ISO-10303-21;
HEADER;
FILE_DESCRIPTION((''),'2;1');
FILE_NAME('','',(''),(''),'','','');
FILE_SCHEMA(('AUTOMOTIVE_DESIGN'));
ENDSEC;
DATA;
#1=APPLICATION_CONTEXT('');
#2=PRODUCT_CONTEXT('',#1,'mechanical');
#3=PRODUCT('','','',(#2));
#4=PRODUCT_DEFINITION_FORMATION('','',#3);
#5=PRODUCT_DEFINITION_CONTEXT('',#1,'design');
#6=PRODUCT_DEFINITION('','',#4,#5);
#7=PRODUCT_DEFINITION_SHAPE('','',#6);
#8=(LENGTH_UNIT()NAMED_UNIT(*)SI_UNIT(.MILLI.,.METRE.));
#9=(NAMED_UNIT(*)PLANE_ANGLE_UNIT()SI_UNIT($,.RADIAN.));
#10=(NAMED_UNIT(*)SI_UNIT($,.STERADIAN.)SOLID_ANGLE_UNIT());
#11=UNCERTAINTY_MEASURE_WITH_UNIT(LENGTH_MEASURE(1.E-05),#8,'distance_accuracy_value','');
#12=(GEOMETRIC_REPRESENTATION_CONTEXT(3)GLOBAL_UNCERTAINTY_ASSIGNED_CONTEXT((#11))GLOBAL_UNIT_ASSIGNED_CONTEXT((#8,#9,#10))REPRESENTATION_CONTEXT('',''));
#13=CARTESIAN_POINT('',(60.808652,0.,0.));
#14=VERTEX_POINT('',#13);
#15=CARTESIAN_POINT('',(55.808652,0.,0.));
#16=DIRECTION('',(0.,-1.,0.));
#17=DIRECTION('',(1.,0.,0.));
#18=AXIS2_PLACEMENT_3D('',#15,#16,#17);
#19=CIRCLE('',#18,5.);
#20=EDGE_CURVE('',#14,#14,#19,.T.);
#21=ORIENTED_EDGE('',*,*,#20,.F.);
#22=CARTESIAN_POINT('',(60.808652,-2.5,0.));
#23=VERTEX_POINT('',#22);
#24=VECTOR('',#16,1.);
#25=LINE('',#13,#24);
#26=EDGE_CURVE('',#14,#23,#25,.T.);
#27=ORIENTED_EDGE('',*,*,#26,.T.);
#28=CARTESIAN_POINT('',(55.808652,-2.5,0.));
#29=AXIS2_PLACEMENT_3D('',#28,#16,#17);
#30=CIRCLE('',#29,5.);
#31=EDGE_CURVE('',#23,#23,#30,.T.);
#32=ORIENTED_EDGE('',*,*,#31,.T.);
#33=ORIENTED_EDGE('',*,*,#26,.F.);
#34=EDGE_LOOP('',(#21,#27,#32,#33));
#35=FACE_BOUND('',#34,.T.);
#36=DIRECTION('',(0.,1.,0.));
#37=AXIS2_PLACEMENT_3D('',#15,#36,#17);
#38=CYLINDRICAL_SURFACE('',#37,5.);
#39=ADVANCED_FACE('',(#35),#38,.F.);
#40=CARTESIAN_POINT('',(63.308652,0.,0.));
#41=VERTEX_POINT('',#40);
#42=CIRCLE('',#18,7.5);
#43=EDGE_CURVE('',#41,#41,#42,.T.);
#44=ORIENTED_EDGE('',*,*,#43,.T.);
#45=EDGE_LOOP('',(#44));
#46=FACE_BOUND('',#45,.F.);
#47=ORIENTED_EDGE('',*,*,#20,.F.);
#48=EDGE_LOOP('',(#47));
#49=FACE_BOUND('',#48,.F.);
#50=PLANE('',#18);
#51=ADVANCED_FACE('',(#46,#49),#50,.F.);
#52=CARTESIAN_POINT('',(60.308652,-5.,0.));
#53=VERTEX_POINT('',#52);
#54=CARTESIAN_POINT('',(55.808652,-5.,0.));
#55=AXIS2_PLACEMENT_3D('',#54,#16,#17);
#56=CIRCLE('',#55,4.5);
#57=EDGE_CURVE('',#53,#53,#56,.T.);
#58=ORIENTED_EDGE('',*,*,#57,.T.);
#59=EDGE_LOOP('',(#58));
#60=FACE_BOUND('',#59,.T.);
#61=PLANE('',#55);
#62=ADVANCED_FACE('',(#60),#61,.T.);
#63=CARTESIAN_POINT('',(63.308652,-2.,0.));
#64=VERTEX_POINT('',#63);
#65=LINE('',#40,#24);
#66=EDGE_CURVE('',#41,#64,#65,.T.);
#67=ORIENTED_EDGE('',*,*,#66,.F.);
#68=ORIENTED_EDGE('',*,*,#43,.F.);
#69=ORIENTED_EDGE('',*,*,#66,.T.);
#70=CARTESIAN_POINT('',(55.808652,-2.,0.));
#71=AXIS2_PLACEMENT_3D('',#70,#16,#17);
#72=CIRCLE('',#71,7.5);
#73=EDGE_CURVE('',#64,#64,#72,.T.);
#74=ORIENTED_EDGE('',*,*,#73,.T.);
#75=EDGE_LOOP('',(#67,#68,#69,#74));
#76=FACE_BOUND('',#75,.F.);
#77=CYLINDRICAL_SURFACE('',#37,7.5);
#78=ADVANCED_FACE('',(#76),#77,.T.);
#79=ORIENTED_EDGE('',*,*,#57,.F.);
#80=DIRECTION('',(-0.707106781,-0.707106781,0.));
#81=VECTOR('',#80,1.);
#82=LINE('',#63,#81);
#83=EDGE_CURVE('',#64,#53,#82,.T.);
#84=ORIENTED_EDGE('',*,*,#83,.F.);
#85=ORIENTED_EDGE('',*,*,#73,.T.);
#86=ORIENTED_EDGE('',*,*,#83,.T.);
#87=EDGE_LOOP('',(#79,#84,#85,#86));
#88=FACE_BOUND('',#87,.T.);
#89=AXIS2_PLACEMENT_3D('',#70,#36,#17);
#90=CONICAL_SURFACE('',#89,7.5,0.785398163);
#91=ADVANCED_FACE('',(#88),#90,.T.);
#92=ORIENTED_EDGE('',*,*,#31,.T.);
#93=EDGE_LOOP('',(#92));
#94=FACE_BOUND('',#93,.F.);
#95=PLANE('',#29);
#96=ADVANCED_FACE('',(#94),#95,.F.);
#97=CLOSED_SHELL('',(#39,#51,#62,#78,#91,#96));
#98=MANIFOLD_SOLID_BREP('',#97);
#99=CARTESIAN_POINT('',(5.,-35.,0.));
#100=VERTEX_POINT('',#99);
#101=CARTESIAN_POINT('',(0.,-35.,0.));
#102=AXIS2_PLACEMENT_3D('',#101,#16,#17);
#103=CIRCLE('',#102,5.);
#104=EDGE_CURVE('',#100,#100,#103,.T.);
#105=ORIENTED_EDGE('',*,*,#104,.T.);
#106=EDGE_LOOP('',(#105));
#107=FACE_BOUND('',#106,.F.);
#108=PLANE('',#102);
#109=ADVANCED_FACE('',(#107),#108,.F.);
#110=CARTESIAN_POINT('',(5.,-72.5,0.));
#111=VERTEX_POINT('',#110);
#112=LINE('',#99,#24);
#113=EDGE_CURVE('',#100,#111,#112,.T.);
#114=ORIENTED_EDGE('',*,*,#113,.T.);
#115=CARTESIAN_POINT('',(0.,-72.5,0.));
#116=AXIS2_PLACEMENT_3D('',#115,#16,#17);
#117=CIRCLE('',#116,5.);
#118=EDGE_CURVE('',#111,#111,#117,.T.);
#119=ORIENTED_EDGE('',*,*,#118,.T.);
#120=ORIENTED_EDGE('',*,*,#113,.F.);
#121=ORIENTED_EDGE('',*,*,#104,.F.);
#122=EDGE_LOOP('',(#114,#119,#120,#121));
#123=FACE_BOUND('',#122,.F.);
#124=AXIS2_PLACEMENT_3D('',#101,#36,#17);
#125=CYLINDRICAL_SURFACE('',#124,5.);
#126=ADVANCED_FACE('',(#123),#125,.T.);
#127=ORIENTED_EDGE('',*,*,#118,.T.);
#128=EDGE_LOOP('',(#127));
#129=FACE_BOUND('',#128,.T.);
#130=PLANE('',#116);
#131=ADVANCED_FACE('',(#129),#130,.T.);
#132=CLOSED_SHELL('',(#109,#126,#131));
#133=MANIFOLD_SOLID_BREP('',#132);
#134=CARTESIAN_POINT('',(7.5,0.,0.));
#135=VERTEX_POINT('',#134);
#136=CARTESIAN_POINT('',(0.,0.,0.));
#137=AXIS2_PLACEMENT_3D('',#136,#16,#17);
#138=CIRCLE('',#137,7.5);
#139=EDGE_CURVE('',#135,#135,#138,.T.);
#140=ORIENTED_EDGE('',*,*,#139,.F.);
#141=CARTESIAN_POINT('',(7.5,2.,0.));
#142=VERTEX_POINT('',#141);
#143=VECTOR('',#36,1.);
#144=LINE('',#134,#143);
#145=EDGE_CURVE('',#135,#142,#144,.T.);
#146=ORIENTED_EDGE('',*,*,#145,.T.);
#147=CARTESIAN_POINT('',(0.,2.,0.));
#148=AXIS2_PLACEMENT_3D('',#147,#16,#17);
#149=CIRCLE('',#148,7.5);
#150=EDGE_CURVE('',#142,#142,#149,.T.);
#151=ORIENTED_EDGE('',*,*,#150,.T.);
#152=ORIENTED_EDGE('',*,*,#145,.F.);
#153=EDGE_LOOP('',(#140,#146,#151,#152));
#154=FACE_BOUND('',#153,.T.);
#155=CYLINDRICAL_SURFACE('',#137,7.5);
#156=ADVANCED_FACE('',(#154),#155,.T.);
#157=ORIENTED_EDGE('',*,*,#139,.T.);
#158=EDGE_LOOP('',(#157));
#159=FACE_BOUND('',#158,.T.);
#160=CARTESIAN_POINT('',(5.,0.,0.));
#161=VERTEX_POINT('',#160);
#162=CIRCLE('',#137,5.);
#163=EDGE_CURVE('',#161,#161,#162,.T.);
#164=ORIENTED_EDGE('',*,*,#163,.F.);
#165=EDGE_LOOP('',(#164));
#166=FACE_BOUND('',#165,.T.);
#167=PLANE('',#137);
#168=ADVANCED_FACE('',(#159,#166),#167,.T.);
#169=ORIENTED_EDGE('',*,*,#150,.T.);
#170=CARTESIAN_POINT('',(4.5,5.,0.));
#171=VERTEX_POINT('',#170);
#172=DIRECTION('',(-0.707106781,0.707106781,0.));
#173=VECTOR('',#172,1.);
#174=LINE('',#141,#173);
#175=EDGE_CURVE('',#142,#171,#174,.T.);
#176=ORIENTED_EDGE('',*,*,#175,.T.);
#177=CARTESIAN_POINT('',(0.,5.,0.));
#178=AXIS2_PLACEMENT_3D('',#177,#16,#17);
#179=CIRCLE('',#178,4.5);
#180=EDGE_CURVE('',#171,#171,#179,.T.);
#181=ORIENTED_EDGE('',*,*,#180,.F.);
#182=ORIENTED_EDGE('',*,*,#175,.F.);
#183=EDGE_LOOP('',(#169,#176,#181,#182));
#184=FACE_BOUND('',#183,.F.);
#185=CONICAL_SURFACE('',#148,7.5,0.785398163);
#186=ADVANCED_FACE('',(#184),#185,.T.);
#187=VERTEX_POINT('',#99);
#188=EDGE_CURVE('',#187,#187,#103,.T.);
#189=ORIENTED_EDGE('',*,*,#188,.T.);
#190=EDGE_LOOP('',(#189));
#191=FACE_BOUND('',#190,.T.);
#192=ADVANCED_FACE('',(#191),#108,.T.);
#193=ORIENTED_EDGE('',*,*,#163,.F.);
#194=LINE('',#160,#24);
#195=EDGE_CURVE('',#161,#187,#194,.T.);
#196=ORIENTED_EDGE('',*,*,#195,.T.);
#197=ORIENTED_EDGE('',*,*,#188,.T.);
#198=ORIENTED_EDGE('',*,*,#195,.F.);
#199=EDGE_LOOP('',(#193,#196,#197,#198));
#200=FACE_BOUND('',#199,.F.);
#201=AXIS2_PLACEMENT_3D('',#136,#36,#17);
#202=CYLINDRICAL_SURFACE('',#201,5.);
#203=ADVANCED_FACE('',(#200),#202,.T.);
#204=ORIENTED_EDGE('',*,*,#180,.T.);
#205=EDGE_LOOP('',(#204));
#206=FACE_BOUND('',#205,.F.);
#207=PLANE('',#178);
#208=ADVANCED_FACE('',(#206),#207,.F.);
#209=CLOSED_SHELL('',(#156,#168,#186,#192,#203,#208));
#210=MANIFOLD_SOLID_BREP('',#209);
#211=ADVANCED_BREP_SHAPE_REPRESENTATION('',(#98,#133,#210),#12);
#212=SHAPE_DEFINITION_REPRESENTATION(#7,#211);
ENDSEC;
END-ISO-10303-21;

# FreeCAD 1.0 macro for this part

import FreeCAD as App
import Part
import Sketcher
from FreeCAD import Vector
Q = App.Units.Quantity


def edges_at(feature, points):
    """Names of the edges that pass closest to the given points."""
    edges = feature.Shape.Edges
    near = lambda p: min(range(len(edges)), key=lambda i: edges[i].distToShape(Part.Vertex(*p))[0])
    return sorted({f"Edge{near(p) + 1}" for p in points})

doc = App.newDocument("Part")
body = doc.addObject("PartDesign::Body", "Body")

# Sketch on XZ plane
sketch1 = body.newObject("Sketcher::SketchObject", "Sketch")
sketch1.AttachmentSupport = (doc.getObject("XZ_Plane"), [""])
sketch1.MapMode = "FlatFace"
sketch1.addGeometry(Part.Circle(Vector(0, 0, 0), Vector(0, 0, 1), 5), False)
sketch1.addConstraint([
    Sketcher.Constraint("Coincident", 0, 3, -1, 1),
    Sketcher.Constraint("Diameter", 0, Q("10 mm")),
])
pad1 = body.newObject("PartDesign::Pad", "Pad")
pad1.Profile = sketch1
pad1.Length = 35

# Sketch on XZ plane
sketch2 = body.newObject("Sketcher::SketchObject", "Sketch001")
sketch2.AttachmentSupport = (doc.getObject("XZ_Plane"), [""])
sketch2.MapMode = "FlatFace"
sketch2.addGeometry(Part.Circle(Vector(0, 0, 0), Vector(0, 0, 1), 8), False)
sketch2.addConstraint([
    Sketcher.Constraint("Coincident", 0, 3, -1, 1),
    Sketcher.Constraint("Diameter", 0, Q("15 mm")),
])
pad2 = body.newObject("PartDesign::Pad", "Pad001")
pad2.Profile = sketch2
pad2.Length = 5
pad2.Reversed = True
doc.recompute()

chamfer = body.newObject("PartDesign::Chamfer", "Chamfer")
chamfer.Base = (pad2, edges_at(pad2, [(-7.5, 5, 0)]))
chamfer.Size = 3
body2 = doc.addObject("PartDesign::Body", "Body001")

# Sketch on XZ plane
sketch3 = body2.newObject("Sketcher::SketchObject", "Sketch002")
sketch3.AttachmentSupport = (doc.getObject("XZ_Plane001"), [""])
sketch3.MapMode = "FlatFace"
sketch3.addGeometry(Part.Circle(Vector(56, 0, 0), Vector(0, 0, 1), 8), False)
sketch3.addConstraint([
    Sketcher.Constraint("PointOnObject", 0, 3, -1),
    Sketcher.Constraint("Diameter", 0, Q("15 mm")),
    Sketcher.Constraint("DistanceX", -1, 1, 0, 3, Q("55.808652 mm")),
])
pad3 = body2.newObject("PartDesign::Pad", "Pad002")
pad3.Profile = sketch3
pad3.Length = 5

# Sketch on XZ plane
sketch4 = body2.newObject("Sketcher::SketchObject", "Sketch003")
sketch4.AttachmentSupport = (doc.getObject("XZ_Plane001"), [""])
sketch4.MapMode = "FlatFace"
sketch4.addGeometry(Part.Circle(Vector(56, 0, 0), Vector(0, 0, 1), 5), False)
sketch4.addConstraint([
    Sketcher.Constraint("PointOnObject", 0, 3, -1),
    Sketcher.Constraint("Diameter", 0, Q("10 mm")),
    Sketcher.Constraint("DistanceX", -1, 1, 0, 3, Q("55.808652 mm")),
])
pocket1 = body2.newObject("PartDesign::Pocket", "Pocket")
pocket1.Profile = sketch4
pocket1.Length = 2.5
pocket1.Reversed = True
doc.recompute()

chamfer2 = body2.newObject("PartDesign::Chamfer", "Chamfer001")
chamfer2.Base = (pocket1, edges_at(pocket1, [(48.309, -5, 0)]))
chamfer2.Size = 3
body3 = doc.addObject("PartDesign::Body", "Body002")

# Sketch on XZ plane
sketch5 = body3.newObject("Sketcher::SketchObject", "Sketch004")
sketch5.AttachmentSupport = (doc.getObject("XZ_Plane002"), [""])
sketch5.MapMode = "FlatFace"
sketch5.AttachmentOffset = App.Placement(Vector(0, 0, 35), App.Rotation())
sketch5.addGeometry(Part.Circle(Vector(0, 0, 0), Vector(0, 0, 1), 5), False)
sketch5.addConstraint([
    Sketcher.Constraint("Coincident", 0, 3, -1, 1),
    Sketcher.Constraint("Diameter", 0, Q("10 mm")),
])
pad4 = body3.newObject("PartDesign::Pad", "Pad003")
pad4.Profile = sketch5
pad4.Length = 37.5

doc.recompute()
